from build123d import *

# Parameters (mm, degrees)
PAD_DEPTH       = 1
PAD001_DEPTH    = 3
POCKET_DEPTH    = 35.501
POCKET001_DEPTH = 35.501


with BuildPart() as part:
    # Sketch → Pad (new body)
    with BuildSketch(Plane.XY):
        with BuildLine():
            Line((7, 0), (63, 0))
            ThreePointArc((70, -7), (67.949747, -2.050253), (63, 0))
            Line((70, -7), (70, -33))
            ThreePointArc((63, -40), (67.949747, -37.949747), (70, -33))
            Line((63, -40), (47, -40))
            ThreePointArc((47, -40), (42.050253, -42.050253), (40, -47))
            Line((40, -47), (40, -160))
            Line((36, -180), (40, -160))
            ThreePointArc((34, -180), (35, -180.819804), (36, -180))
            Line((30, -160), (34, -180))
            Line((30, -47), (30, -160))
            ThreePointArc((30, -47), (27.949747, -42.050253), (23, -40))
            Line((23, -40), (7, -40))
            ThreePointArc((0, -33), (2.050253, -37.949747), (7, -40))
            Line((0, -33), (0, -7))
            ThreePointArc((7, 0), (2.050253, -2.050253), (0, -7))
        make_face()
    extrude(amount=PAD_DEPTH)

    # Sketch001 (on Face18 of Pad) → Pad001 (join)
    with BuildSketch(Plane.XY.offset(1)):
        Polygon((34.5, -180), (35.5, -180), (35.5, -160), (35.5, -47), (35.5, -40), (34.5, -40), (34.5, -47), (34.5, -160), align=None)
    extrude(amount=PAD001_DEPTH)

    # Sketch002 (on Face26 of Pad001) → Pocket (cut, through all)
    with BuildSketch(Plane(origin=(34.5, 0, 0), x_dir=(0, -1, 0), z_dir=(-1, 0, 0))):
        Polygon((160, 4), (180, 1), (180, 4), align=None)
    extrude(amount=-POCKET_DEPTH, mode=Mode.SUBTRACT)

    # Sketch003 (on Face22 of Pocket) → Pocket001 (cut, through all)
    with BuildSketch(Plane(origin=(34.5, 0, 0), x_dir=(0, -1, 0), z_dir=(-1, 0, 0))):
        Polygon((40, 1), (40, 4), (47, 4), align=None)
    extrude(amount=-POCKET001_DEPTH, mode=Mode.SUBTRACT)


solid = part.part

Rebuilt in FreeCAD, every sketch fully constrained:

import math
import FreeCAD as App
import Part
import Sketcher
Q = App.Units.Quantity

doc = App.newDocument("Part")
body = doc.addObject("PartDesign::Body", "Body")

# Sketch on XY plane
sketch1 = body.newObject("Sketcher::SketchObject", "Sketch")
sketch1.AttachmentSupport = (doc.getObject("XY_Plane"), [""])
sketch1.MapMode = "FlatFace"
sketch1.addGeometry(Part.LineSegment(App.Vector(63, 0, 0), App.Vector(7, 0, 0)), False)
sketch1.addGeometry(Part.ArcOfCircle(Part.Circle(App.Vector(7, -7, 0), App.Vector(0, 0, 1), 7), math.radians(90), math.radians(180)), False)
sketch1.addGeometry(Part.LineSegment(App.Vector(0, -7, 0), App.Vector(0, -33, 0)), False)
sketch1.addGeometry(Part.ArcOfCircle(Part.Circle(App.Vector(7, -33, 0), App.Vector(0, 0, 1), 7), math.radians(-180), math.radians(-90)), False)
sketch1.addGeometry(Part.LineSegment(App.Vector(7, -40, 0), App.Vector(23, -40, 0)), False)
sketch1.addGeometry(Part.ArcOfCircle(Part.Circle(App.Vector(23, -47, 0), App.Vector(0, 0, 1), 7), math.radians(0), math.radians(90)), False)
sketch1.addGeometry(Part.LineSegment(App.Vector(30, -47, 0), App.Vector(30, -160, 0)), False)
sketch1.addGeometry(Part.LineSegment(App.Vector(30, -160, 0), App.Vector(34, -180, 0)), False)
sketch1.addGeometry(Part.ArcOfCircle(Part.Circle(App.Vector(35, -179.8, 0), App.Vector(0, 0, 1), 1), math.radians(-169), math.radians(-11)), False)
sketch1.addGeometry(Part.LineSegment(App.Vector(36, -180, 0), App.Vector(40, -160, 0)), False)
sketch1.addGeometry(Part.LineSegment(App.Vector(40, -160, 0), App.Vector(40, -47, 0)), False)
sketch1.addGeometry(Part.ArcOfCircle(Part.Circle(App.Vector(47, -47, 0), App.Vector(0, 0, 1), 7), math.radians(90), math.radians(180)), False)
sketch1.addGeometry(Part.LineSegment(App.Vector(47, -40, 0), App.Vector(63, -40, 0)), False)
sketch1.addGeometry(Part.ArcOfCircle(Part.Circle(App.Vector(63, -33, 0), App.Vector(0, 0, 1), 7), math.radians(-90), math.radians(0)), False)
sketch1.addGeometry(Part.LineSegment(App.Vector(70, -33, 0), App.Vector(70, -7, 0)), False)
sketch1.addGeometry(Part.ArcOfCircle(Part.Circle(App.Vector(63, -7, 0), App.Vector(0, 0, 1), 7), math.radians(0), math.radians(90)), False)
sketch1.addConstraint(Sketcher.Constraint("Tangent", 0, 2, 1, 1))
sketch1.addConstraint(Sketcher.Constraint("Tangent", 1, 2, 2, 1))
sketch1.addConstraint(Sketcher.Constraint("Tangent", 2, 2, 3, 1))
sketch1.addConstraint(Sketcher.Constraint("Tangent", 3, 2, 4, 1))
sketch1.addConstraint(Sketcher.Constraint("Tangent", 4, 2, 5, 2))
sketch1.addConstraint(Sketcher.Constraint("Tangent", 5, 1, 6, 1))
sketch1.addConstraint(Sketcher.Constraint("Coincident", 6, 2, 7, 1))
sketch1.addConstraint(Sketcher.Constraint("Tangent", 7, 2, 8, 1))
sketch1.addConstraint(Sketcher.Constraint("Tangent", 8, 2, 9, 1))
sketch1.addConstraint(Sketcher.Constraint("Coincident", 9, 2, 10, 1))
sketch1.addConstraint(Sketcher.Constraint("Tangent", 10, 2, 11, 2))
sketch1.addConstraint(Sketcher.Constraint("Tangent", 11, 1, 12, 1))
sketch1.addConstraint(Sketcher.Constraint("Tangent", 12, 2, 13, 1))
sketch1.addConstraint(Sketcher.Constraint("Tangent", 13, 2, 14, 1))
sketch1.addConstraint(Sketcher.Constraint("Tangent", 14, 2, 15, 1))
sketch1.addConstraint(Sketcher.Constraint("Tangent", 15, 2, 0, 1))
sketch1.addConstraint(Sketcher.Constraint("Horizontal", 0))
sketch1.addConstraint(Sketcher.Constraint("Vertical", 2))
sketch1.addConstraint(Sketcher.Constraint("Horizontal", 4))
sketch1.addConstraint(Sketcher.Constraint("Vertical", 6))
sketch1.addConstraint(Sketcher.Constraint("Vertical", 10))
sketch1.addConstraint(Sketcher.Constraint("Horizontal", 12))
sketch1.addConstraint(Sketcher.Constraint("Vertical", 14))
sketch1.addConstraint(Sketcher.Constraint("Equal", 1, 3))
sketch1.addConstraint(Sketcher.Constraint("Equal", 3, 5))
sketch1.addConstraint(Sketcher.Constraint("Equal", 5, 11))
sketch1.addConstraint(Sketcher.Constraint("Equal", 11, 13))
sketch1.addConstraint(Sketcher.Constraint("Equal", 13, 15))
sketch1.addConstraint(Sketcher.Constraint("PointOnObject", 0, 2, -1))
sketch1.addConstraint(Sketcher.Constraint("PointOnObject", 1, 2, -2))
sketch1.addConstraint(Sketcher.Constraint("Horizontal", 5, 3, 11, 3))
sketch1.addConstraint(Sketcher.Constraint("Horizontal", 7, 2, 8, 2))
sketch1.addConstraint(Sketcher.Constraint("Horizontal", 6, 2, 9, 2))
sketch1.addConstraint(Sketcher.Constraint("Equal", 4, 12))
sketch1.addConstraint(Sketcher.Constraint("Radius", 1, Q("7.000002 mm")))
sketch1.addConstraint(Sketcher.Constraint("DistanceX", 0, 2, 0, 1, Q("56 mm")))
sketch1.addConstraint(Sketcher.Constraint("DistanceX", 4, 1, 4, 2, Q("16 mm")))
sketch1.addConstraint(Sketcher.Constraint("DistanceY", 2, 2, 2, 1, Q("26 mm")))
sketch1.addConstraint(Sketcher.Constraint("DistanceY", 6, 2, 6, 1, Q("113 mm")))
sketch1.addConstraint(Sketcher.Constraint("DistanceX", -1, 1, 7, 2, Q("34 mm")))
sketch1.addConstraint(Sketcher.Constraint("DistanceY", 7, 2, -1, 1, Q("180 mm")))
pad1 = body.newObject("PartDesign::Pad", "Pad")
pad1.Profile = sketch1
pad1.Length = 1

# Sketch on XY plane
sketch2 = body.newObject("Sketcher::SketchObject", "Sketch001")
sketch2.AttachmentSupport = (doc.getObject("XY_Plane"), [""])
sketch2.MapMode = "FlatFace"
sketch2.AttachmentOffset = App.Placement(App.Vector(0, 0, 1), App.Rotation())
sketch2.addGeometry(Part.LineSegment(App.Vector(34.5, -180, 0), App.Vector(35.5, -180, 0)), False)
sketch2.addGeometry(Part.LineSegment(App.Vector(35.5, -180, 0), App.Vector(35.5, -40, 0)), False)
sketch2.addGeometry(Part.LineSegment(App.Vector(35.5, -40, 0), App.Vector(34.5, -40, 0)), False)
sketch2.addGeometry(Part.LineSegment(App.Vector(34.5, -40, 0), App.Vector(34.5, -180, 0)), False)
sketch2.addConstraint(Sketcher.Constraint("Coincident", 0, 2, 1, 1))
sketch2.addConstraint(Sketcher.Constraint("Coincident", 1, 2, 2, 1))
sketch2.addConstraint(Sketcher.Constraint("Coincident", 2, 2, 3, 1))
sketch2.addConstraint(Sketcher.Constraint("Coincident", 3, 2, 0, 1))
sketch2.addConstraint(Sketcher.Constraint("Horizontal", 0))
sketch2.addConstraint(Sketcher.Constraint("Vertical", 1))
sketch2.addConstraint(Sketcher.Constraint("Horizontal", 2))
sketch2.addConstraint(Sketcher.Constraint("Vertical", 3))
sketch2.addConstraint(Sketcher.Constraint("DistanceX", 0, 1, 0, 2, Q("1 mm")))
sketch2.addConstraint(Sketcher.Constraint("DistanceY", 1, 1, 1, 2, Q("140 mm")))
sketch2.addConstraint(Sketcher.Constraint("DistanceY", 0, 2, -1, 1, Q("180 mm")))
sketch2.addConstraint(Sketcher.Constraint("DistanceX", -1, 1, 0, 2, Q("35.5 mm")))
pad2 = body.newObject("PartDesign::Pad", "Pad001")
pad2.Profile = sketch2
pad2.Length = 3

# Sketch on YZ plane
sketch3 = body.newObject("Sketcher::SketchObject", "Sketch002")
sketch3.AttachmentSupport = (doc.getObject("YZ_Plane"), [""])
sketch3.MapMode = "FlatFace"
sketch3.AttachmentOffset = App.Placement(App.Vector(0, 0, 34.5), App.Rotation())
sketch3.addGeometry(Part.LineSegment(App.Vector(-160, 4, 0), App.Vector(-180, 1, 0)), False)
sketch3.addGeometry(Part.LineSegment(App.Vector(-180, 1, 0), App.Vector(-180, 4, 0)), False)
sketch3.addGeometry(Part.LineSegment(App.Vector(-180, 4, 0), App.Vector(-160, 4, 0)), False)
sketch3.addConstraint(Sketcher.Constraint("Coincident", 0, 2, 1, 1))
sketch3.addConstraint(Sketcher.Constraint("Coincident", 1, 2, 2, 1))
sketch3.addConstraint(Sketcher.Constraint("Coincident", 2, 2, 0, 1))
sketch3.addConstraint(Sketcher.Constraint("Vertical", 1))
sketch3.addConstraint(Sketcher.Constraint("Horizontal", 2))
sketch3.addConstraint(Sketcher.Constraint("DistanceX", 2, 1, 2, 2, Q("20 mm")))
sketch3.addConstraint(Sketcher.Constraint("DistanceY", 1, 1, 1, 2, Q("3 mm")))
sketch3.addConstraint(Sketcher.Constraint("DistanceX", 0, 2, -1, 1, Q("180 mm")))
sketch3.addConstraint(Sketcher.Constraint("DistanceY", -1, 1, 0, 2, Q("1 mm")))
pocket1 = body.newObject("PartDesign::Pocket", "Pocket")
pocket1.Profile = sketch3
pocket1.Type = "ThroughAll"
pocket1.Reversed = True

# Sketch on YZ plane
sketch4 = body.newObject("Sketcher::SketchObject", "Sketch003")
sketch4.AttachmentSupport = (doc.getObject("YZ_Plane"), [""])
sketch4.MapMode = "FlatFace"
sketch4.AttachmentOffset = App.Placement(App.Vector(0, 0, 34.5), App.Rotation())
sketch4.addGeometry(Part.LineSegment(App.Vector(-40, 4, 0), App.Vector(-40, 1, 0)), False)
sketch4.addGeometry(Part.LineSegment(App.Vector(-40, 1, 0), App.Vector(-47, 4, 0)), False)
sketch4.addGeometry(Part.LineSegment(App.Vector(-47, 4, 0), App.Vector(-40, 4, 0)), False)
sketch4.addConstraint(Sketcher.Constraint("Coincident", 0, 2, 1, 1))
sketch4.addConstraint(Sketcher.Constraint("Coincident", 1, 2, 2, 1))
sketch4.addConstraint(Sketcher.Constraint("Coincident", 2, 2, 0, 1))
sketch4.addConstraint(Sketcher.Constraint("Vertical", 0))
sketch4.addConstraint(Sketcher.Constraint("Horizontal", 2))
sketch4.addConstraint(Sketcher.Constraint("DistanceX", 2, 1, 2, 2, Q("7 mm")))
sketch4.addConstraint(Sketcher.Constraint("DistanceY", 0, 2, 0, 1, Q("3 mm")))
sketch4.addConstraint(Sketcher.Constraint("DistanceX", 0, 2, -1, 1, Q("40 mm")))
sketch4.addConstraint(Sketcher.Constraint("DistanceY", -1, 1, 0, 2, Q("1 mm")))
pocket2 = body.newObject("PartDesign::Pocket", "Pocket001")
pocket2.Profile = sketch4
pocket2.Type = "ThroughAll"
pocket2.Reversed = True

doc.recompute()
